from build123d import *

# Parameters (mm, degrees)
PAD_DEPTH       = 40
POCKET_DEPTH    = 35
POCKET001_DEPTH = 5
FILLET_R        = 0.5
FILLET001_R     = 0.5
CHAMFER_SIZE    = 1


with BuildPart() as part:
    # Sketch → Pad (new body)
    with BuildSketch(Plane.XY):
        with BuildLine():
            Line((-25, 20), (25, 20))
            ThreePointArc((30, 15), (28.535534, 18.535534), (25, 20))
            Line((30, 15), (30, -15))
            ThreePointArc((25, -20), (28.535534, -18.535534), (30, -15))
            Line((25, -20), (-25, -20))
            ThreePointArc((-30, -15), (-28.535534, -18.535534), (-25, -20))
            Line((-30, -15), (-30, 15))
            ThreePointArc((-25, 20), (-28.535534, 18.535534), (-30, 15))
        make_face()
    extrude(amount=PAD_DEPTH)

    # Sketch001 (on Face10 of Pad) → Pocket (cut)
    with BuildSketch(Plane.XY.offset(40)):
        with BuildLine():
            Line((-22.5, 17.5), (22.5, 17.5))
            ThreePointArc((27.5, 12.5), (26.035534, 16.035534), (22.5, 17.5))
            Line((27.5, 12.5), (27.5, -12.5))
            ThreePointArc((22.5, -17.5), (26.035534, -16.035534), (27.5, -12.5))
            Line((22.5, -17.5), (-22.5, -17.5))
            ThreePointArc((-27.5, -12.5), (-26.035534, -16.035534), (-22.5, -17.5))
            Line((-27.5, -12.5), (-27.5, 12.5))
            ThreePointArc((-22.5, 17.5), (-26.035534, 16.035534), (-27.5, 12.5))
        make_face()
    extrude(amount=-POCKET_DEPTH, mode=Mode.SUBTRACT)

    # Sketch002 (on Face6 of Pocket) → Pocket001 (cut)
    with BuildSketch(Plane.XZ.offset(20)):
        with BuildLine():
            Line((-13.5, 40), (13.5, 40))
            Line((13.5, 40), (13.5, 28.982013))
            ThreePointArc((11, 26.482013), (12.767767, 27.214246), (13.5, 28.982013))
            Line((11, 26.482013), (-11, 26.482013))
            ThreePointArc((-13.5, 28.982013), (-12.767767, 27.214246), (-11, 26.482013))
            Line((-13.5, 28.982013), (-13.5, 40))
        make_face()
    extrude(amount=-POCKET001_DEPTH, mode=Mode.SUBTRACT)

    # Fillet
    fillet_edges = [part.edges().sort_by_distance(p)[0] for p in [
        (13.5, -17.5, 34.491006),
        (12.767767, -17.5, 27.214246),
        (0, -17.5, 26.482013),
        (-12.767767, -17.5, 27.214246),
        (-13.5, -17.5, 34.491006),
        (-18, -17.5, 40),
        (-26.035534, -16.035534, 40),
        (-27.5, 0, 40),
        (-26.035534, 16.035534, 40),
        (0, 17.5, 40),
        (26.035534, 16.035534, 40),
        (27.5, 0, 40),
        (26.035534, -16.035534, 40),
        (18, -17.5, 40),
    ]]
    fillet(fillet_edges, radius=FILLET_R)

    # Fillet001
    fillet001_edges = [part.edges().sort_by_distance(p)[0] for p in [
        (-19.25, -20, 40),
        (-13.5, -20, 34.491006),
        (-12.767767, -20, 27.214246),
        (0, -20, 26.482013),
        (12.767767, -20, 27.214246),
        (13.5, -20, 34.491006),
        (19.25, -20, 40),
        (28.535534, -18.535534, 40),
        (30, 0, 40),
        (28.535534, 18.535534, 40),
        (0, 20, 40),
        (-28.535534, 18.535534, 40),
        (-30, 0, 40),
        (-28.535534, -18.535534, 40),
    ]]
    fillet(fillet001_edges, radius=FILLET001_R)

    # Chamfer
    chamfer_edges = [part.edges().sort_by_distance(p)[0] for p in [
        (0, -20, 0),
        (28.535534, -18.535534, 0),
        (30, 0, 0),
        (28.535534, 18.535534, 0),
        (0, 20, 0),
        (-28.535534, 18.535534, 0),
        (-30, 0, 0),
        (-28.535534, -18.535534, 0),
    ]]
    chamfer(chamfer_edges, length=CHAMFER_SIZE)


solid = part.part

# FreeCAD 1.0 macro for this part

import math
import FreeCAD as App
import Part
import Sketcher

V = App.Vector


def edges_at(feature, points):
    """Names of the edges that pass closest to the given points."""
    edges = feature.Shape.Edges
    near = lambda p: min(range(len(edges)), key=lambda i: edges[i].distToShape(Part.Vertex(*p))[0])
    return sorted({f"Edge{near(p) + 1}" for p in points})

doc = App.newDocument("Part")
params = doc.addObject("Spreadsheet::Sheet", "Params")
for row, (alias, value) in enumerate([
    ("sketch1_radius", "5 mm"),
    ("sketch1_width", "50 mm"),
    ("sketch1_height", "30 mm"),
    ("pad1_length", "40 mm"),
    ("sketch2_radius", "5 mm"),
    ("sketch2_width", "45 mm"),
    ("sketch2_height", "25 mm"),
    ("pocket1_length", "35 mm"),
    ("sketch3_radius", "2.5 mm"),
    ("sketch3_width", "27 mm"),
    ("pocket2_length", "5 mm"),
    ("fillet_radius", "0.5 mm"),
    ("fillet2_radius", "0.5 mm"),
    ("chamfer_size", "1 mm"),
], start=1):
    params.set(f"A{row}", alias)
    params.set(f"B{row}", "=" + value)
    params.setAlias(f"B{row}", alias)

body = doc.addObject("PartDesign::Body", "Body")

sketch1 = body.newObject("Sketcher::SketchObject", "Sketch")
sketch1.AttachmentSupport = (doc.getObject("XY_Plane"), [""])
sketch1.MapMode = "FlatFace"
sketch1.addGeometry(Part.LineSegment(V(25, 20, 0), V(-25, 20, 0)), False)
sketch1.addGeometry(Part.ArcOfCircle(Part.Circle(V(-25, 15, 0), V(0, 0, 1), 5), math.radians(89.999996), math.radians(180.000004)), False)
sketch1.addGeometry(Part.LineSegment(V(-30, 15, 0), V(-30, -15, 0)), False)
sketch1.addGeometry(Part.ArcOfCircle(Part.Circle(V(-25, -15, 0), V(0, 0, 1), 5), math.radians(179.999996), math.radians(270.000004)), False)
sketch1.addGeometry(Part.LineSegment(V(-25, -20, 0), V(25, -20, 0)), False)
sketch1.addGeometry(Part.ArcOfCircle(Part.Circle(V(25, -15, 0), V(0, 0, 1), 5), math.radians(-90.000004), math.radians(0.000004)), False)
sketch1.addGeometry(Part.LineSegment(V(30, -15, 0), V(30, 15, 0)), False)
sketch1.addGeometry(Part.ArcOfCircle(Part.Circle(V(25, 15, 0), V(0, 0, 1), 5), math.radians(-0.000004), math.radians(90.000004)), False)
sketch1.addConstraint(Sketcher.Constraint("Tangent", 0, 2, 1, 1))
sketch1.addConstraint(Sketcher.Constraint("Tangent", 1, 2, 2, 1))
sketch1.addConstraint(Sketcher.Constraint("Tangent", 2, 2, 3, 1))
sketch1.addConstraint(Sketcher.Constraint("Tangent", 3, 2, 4, 1))
sketch1.addConstraint(Sketcher.Constraint("Tangent", 4, 2, 5, 1))
sketch1.addConstraint(Sketcher.Constraint("Tangent", 5, 2, 6, 1))
sketch1.addConstraint(Sketcher.Constraint("Tangent", 6, 2, 7, 1))
sketch1.addConstraint(Sketcher.Constraint("Tangent", 7, 2, 0, 1))
sketch1.addConstraint(Sketcher.Constraint("Horizontal", 0))
sketch1.addConstraint(Sketcher.Constraint("Vertical", 2))
sketch1.addConstraint(Sketcher.Constraint("Horizontal", 4))
sketch1.addConstraint(Sketcher.Constraint("Vertical", 6))
sketch1.addConstraint(Sketcher.Constraint("Equal", 1, 3))
sketch1.addConstraint(Sketcher.Constraint("Equal", 3, 5))
sketch1.addConstraint(Sketcher.Constraint("Equal", 5, 7))
sketch1.addConstraint(Sketcher.Constraint("Symmetric", 1, 3, 5, 3, -1, 1))
sketch1.addConstraint(Sketcher.Constraint("Radius", 1, 5.0))
sketch1.addConstraint(Sketcher.Constraint("DistanceX", 0, 2, 0, 1, 50.0))
sketch1.addConstraint(Sketcher.Constraint("DistanceY", 2, 2, 2, 1, 30.0))
sketch1.setExpression("Constraints[16]", "Params.sketch1_radius")
sketch1.setExpression("Constraints[17]", "Params.sketch1_width")
sketch1.setExpression("Constraints[18]", "Params.sketch1_height")
pad1 = body.newObject("PartDesign::Pad", "Pad")
pad1.Profile = sketch1
pad1.setExpression("Length", "Params.pad1_length")

sketch2 = body.newObject("Sketcher::SketchObject", "Sketch001")
sketch2.AttachmentSupport = (doc.getObject("XY_Plane"), [""])
sketch2.MapMode = "FlatFace"
sketch2.AttachmentOffset = App.Placement(V(0, 0, 40), App.Rotation())
sketch2.addGeometry(Part.LineSegment(V(22.5, 17.5, 0), V(-22.5, 17.5, 0)), False)
sketch2.addGeometry(Part.ArcOfCircle(Part.Circle(V(-22.5, 12.5, 0), V(0, 0, 1), 5), math.radians(89.999996), math.radians(180.000004)), False)
sketch2.addGeometry(Part.LineSegment(V(-27.5, 12.5, 0), V(-27.5, -12.5, 0)), False)
sketch2.addGeometry(Part.ArcOfCircle(Part.Circle(V(-22.5, -12.5, 0), V(0, 0, 1), 5), math.radians(179.999996), math.radians(270.000004)), False)
sketch2.addGeometry(Part.LineSegment(V(-22.5, -17.5, 0), V(22.5, -17.5, 0)), False)
sketch2.addGeometry(Part.ArcOfCircle(Part.Circle(V(22.5, -12.5, 0), V(0, 0, 1), 5), math.radians(-90.000004), math.radians(0.000004)), False)
sketch2.addGeometry(Part.LineSegment(V(27.5, -12.5, 0), V(27.5, 12.5, 0)), False)
sketch2.addGeometry(Part.ArcOfCircle(Part.Circle(V(22.5, 12.5, 0), V(0, 0, 1), 5), math.radians(-0.000004), math.radians(90.000004)), False)
sketch2.addConstraint(Sketcher.Constraint("Tangent", 0, 2, 1, 1))
sketch2.addConstraint(Sketcher.Constraint("Tangent", 1, 2, 2, 1))
sketch2.addConstraint(Sketcher.Constraint("Tangent", 2, 2, 3, 1))
sketch2.addConstraint(Sketcher.Constraint("Tangent", 3, 2, 4, 1))
sketch2.addConstraint(Sketcher.Constraint("Tangent", 4, 2, 5, 1))
sketch2.addConstraint(Sketcher.Constraint("Tangent", 5, 2, 6, 1))
sketch2.addConstraint(Sketcher.Constraint("Tangent", 6, 2, 7, 1))
sketch2.addConstraint(Sketcher.Constraint("Tangent", 7, 2, 0, 1))
sketch2.addConstraint(Sketcher.Constraint("Horizontal", 0))
sketch2.addConstraint(Sketcher.Constraint("Vertical", 2))
sketch2.addConstraint(Sketcher.Constraint("Horizontal", 4))
sketch2.addConstraint(Sketcher.Constraint("Vertical", 6))
sketch2.addConstraint(Sketcher.Constraint("Equal", 1, 3))
sketch2.addConstraint(Sketcher.Constraint("Equal", 3, 5))
sketch2.addConstraint(Sketcher.Constraint("Equal", 5, 7))
sketch2.addConstraint(Sketcher.Constraint("Symmetric", 1, 3, 5, 3, -1, 1))
sketch2.addConstraint(Sketcher.Constraint("Radius", 1, 5.0))
sketch2.addConstraint(Sketcher.Constraint("DistanceX", 0, 2, 0, 1, 45.0))
sketch2.addConstraint(Sketcher.Constraint("DistanceY", 2, 2, 2, 1, 25.0))
sketch2.setExpression("Constraints[16]", "Params.sketch2_radius")
sketch2.setExpression("Constraints[17]", "Params.sketch2_width")
sketch2.setExpression("Constraints[18]", "Params.sketch2_height")
pocket1 = body.newObject("PartDesign::Pocket", "Pocket")
pocket1.Profile = sketch2
pocket1.setExpression("Length", "Params.pocket1_length")

sketch3 = body.newObject("Sketcher::SketchObject", "Sketch002")
sketch3.AttachmentSupport = (doc.getObject("XZ_Plane"), [""])
sketch3.MapMode = "FlatFace"
sketch3.AttachmentOffset = App.Placement(V(0, 0, 20), App.Rotation())
sketch3.addGeometry(Part.LineSegment(V(13.5, 40, 0), V(-13.5, 40, 0)), False)
sketch3.addGeometry(Part.LineSegment(V(-13.5, 40, 0), V(-13.5, 28.982013, 0)), False)
sketch3.addGeometry(Part.ArcOfCircle(Part.Circle(V(-11, 28.982013, 0), V(0, 0, 1), 2.5), math.radians(179.999996), math.radians(270.000004)), False)
sketch3.addGeometry(Part.LineSegment(V(-11, 26.482013, 0), V(11, 26.482013, 0)), False)
sketch3.addGeometry(Part.ArcOfCircle(Part.Circle(V(11, 28.982013, 0), V(0, 0, 1), 2.5), math.radians(-90.000004), math.radians(0.000004)), False)
sketch3.addGeometry(Part.LineSegment(V(13.5, 28.982013, 0), V(13.5, 40, 0)), False)
sketch3.addConstraint(Sketcher.Constraint("Coincident", 0, 2, 1, 1))
sketch3.addConstraint(Sketcher.Constraint("Tangent", 1, 2, 2, 1))
sketch3.addConstraint(Sketcher.Constraint("Tangent", 2, 2, 3, 1))
sketch3.addConstraint(Sketcher.Constraint("Tangent", 3, 2, 4, 1))
sketch3.addConstraint(Sketcher.Constraint("Tangent", 4, 2, 5, 1))
sketch3.addConstraint(Sketcher.Constraint("Coincident", 5, 2, 0, 1))
sketch3.addConstraint(Sketcher.Constraint("Horizontal", 0))
sketch3.addConstraint(Sketcher.Constraint("Vertical", 1))
sketch3.addConstraint(Sketcher.Constraint("Horizontal", 3))
sketch3.addConstraint(Sketcher.Constraint("Vertical", 5))
sketch3.addConstraint(Sketcher.Constraint("Equal", 2, 4))
sketch3.addConstraint(Sketcher.Constraint("Radius", 2, 2.5))
sketch3.addConstraint(Sketcher.Constraint("DistanceX", 0, 2, 0, 1, 27.0))
sketch3.addConstraint(Sketcher.Constraint("DistanceX", 2, 3, -1, 1, 11.0))
sketch3.addConstraint(Sketcher.Constraint("DistanceY", -1, 1, 0, 2, 40.0))
sketch3.addConstraint(Sketcher.Constraint("DistanceY", 1, 2, 1, 1, 11.017987))
sketch3.setExpression("Constraints[11]", "Params.sketch3_radius")
sketch3.setExpression("Constraints[12]", "Params.sketch3_width")
pocket2 = body.newObject("PartDesign::Pocket", "Pocket001")
pocket2.Profile = sketch3
pocket2.setExpression("Length", "Params.pocket2_length")
doc.recompute()

fillet = body.newObject("PartDesign::Fillet", "Fillet")
fillet.Base = (pocket2, edges_at(pocket2, [
    (13.5, -17.5, 34.491),
    (12.768, -17.5, 27.214),
    (0, -17.5, 26.482),
    (-12.768, -17.5, 27.214),
    (-13.5, -17.5, 34.491),
    (-18, -17.5, 40),
    (-26.036, -16.036, 40),
    (-27.5, 0, 40),
    (-26.036, 16.036, 40),
    (0, 17.5, 40),
    (26.036, 16.036, 40),
    (27.5, 0, 40),
    (26.036, -16.036, 40),
    (18, -17.5, 40),
]))
fillet.setExpression("Radius", "Params.fillet_radius")
doc.recompute()

fillet2 = body.newObject("PartDesign::Fillet", "Fillet001")
fillet2.Base = (fillet, edges_at(fillet, [
    (-19.25, -20, 40),
    (-13.5, -20, 34.491),
    (-12.768, -20, 27.214),
    (0, -20, 26.482),
    (12.768, -20, 27.214),
    (13.5, -20, 34.491),
    (19.25, -20, 40),
    (28.536, -18.536, 40),
    (30, 0, 40),
    (28.536, 18.536, 40),
    (0, 20, 40),
    (-28.536, 18.536, 40),
    (-30, 0, 40),
    (-28.536, -18.536, 40),
]))
fillet2.setExpression("Radius", "Params.fillet2_radius")
doc.recompute()

chamfer = body.newObject("PartDesign::Chamfer", "Chamfer")
chamfer.Base = (fillet2, edges_at(fillet2, [
    (0, -20, 0),
    (28.536, -18.536, 0),
    (30, 0, 0),
    (28.536, 18.536, 0),
    (0, 20, 0),
    (-28.536, 18.536, 0),
    (-30, 0, 0),
    (-28.536, -18.536, 0),
]))
chamfer.setExpression("Size", "Params.chamfer_size")

doc.recompute()
